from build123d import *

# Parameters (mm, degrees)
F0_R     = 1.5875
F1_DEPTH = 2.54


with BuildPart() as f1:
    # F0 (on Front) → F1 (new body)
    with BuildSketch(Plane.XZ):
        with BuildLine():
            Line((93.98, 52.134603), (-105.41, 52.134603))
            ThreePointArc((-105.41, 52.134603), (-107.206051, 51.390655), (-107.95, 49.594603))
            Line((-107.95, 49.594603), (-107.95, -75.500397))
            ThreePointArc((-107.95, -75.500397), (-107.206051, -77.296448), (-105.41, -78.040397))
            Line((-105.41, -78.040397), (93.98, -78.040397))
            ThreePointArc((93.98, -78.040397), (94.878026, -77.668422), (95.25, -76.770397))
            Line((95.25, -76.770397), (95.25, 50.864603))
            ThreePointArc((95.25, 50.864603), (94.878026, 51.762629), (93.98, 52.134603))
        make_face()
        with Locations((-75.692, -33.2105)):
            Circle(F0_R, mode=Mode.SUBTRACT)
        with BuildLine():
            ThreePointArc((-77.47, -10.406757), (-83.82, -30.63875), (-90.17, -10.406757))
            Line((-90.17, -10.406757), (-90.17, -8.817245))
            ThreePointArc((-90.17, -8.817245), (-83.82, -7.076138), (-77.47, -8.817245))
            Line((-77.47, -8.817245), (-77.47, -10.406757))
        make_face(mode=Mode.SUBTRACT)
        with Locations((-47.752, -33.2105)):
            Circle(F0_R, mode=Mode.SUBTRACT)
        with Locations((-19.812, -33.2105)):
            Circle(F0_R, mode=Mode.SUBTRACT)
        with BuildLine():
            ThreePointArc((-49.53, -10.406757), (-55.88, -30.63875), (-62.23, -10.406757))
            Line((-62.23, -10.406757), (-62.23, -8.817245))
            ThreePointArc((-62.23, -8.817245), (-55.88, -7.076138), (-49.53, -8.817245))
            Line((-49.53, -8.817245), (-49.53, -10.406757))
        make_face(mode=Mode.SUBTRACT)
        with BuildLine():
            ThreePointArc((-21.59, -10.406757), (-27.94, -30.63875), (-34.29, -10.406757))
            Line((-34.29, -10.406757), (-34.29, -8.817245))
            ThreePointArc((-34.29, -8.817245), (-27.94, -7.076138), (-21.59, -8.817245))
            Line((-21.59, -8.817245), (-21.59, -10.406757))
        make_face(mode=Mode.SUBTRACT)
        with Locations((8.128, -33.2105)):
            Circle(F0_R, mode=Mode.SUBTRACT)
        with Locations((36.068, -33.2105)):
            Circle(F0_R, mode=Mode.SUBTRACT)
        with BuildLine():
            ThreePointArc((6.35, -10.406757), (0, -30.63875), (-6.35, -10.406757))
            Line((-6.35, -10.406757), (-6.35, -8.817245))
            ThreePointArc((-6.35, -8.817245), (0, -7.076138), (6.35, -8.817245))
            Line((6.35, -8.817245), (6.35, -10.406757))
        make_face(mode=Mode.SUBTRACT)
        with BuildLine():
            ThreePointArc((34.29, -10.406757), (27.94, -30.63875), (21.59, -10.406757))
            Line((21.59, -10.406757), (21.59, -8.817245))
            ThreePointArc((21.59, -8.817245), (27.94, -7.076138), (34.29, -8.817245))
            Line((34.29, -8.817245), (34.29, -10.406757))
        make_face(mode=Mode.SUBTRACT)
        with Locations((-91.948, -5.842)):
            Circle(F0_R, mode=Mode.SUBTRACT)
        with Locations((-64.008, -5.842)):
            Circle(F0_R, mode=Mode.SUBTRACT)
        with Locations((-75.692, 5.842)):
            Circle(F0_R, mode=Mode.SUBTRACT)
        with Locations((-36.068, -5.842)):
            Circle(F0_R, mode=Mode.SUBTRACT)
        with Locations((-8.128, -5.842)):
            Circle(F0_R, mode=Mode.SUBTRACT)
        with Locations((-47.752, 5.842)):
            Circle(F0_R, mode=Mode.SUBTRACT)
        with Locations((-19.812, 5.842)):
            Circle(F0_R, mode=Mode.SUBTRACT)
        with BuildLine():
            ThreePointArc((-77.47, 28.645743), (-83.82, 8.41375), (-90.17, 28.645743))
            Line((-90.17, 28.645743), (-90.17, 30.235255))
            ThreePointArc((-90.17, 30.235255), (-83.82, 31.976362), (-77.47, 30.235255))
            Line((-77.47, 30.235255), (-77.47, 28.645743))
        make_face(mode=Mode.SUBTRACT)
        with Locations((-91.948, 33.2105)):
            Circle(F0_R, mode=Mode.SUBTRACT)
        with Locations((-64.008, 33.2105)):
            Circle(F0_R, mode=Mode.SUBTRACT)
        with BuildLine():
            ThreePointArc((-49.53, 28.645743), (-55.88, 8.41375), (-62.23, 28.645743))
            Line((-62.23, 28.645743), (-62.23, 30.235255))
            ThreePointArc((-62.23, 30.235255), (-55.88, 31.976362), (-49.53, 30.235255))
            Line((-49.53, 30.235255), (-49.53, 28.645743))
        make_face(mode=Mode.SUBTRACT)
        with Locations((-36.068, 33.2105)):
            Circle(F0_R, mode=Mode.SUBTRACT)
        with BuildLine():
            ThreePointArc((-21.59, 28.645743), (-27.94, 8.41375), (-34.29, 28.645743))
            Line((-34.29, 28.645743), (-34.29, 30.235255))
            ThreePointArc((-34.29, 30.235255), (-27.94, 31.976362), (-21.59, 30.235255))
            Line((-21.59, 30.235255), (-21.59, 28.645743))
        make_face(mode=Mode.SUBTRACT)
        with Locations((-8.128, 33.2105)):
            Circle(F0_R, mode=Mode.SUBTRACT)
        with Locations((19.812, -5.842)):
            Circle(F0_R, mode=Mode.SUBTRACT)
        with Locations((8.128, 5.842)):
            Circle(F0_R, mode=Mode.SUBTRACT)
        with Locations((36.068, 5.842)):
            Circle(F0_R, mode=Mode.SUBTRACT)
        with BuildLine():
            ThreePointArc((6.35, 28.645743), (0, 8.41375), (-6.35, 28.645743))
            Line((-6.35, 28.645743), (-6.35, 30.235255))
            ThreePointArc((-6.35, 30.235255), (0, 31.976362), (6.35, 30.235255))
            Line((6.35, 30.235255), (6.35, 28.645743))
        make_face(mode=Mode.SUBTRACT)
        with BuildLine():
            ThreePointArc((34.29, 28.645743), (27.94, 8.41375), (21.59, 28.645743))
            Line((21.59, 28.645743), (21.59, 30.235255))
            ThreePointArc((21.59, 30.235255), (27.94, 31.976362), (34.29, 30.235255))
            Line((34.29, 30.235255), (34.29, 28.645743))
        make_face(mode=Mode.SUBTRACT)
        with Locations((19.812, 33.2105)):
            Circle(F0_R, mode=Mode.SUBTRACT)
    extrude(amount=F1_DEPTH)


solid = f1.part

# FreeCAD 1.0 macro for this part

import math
import FreeCAD as App
import Part
import Sketcher
from FreeCAD import Vector
Q = App.Units.Quantity

doc = App.newDocument("Part")
body = doc.addObject("PartDesign::Body", "Body")

sketch1 = body.newObject("Sketcher::SketchObject", "Sketch")
sketch1.AttachmentSupport = (doc.getObject("XZ_Plane"), [""])
sketch1.MapMode = "FlatFace"
sketch1.addGeometry([
    Part.LineSegment(Vector(94, 52.1, 0), Vector(-105.4, 52.1, 0)),
    Part.ArcOfCircle(Part.Circle(Vector(-105.4, 49.6, 0), Vector(0, 0, 1), 2.5), math.radians(90), math.radians(180)),
    Part.LineSegment(Vector(-108, 49.6, 0), Vector(-108, -75.5, 0)),
    Part.ArcOfCircle(Part.Circle(Vector(-105.4, -75.5, 0), Vector(0, 0, 1), 2.5), math.radians(-180), math.radians(-90)),
    Part.LineSegment(Vector(-105.4, -78, 0), Vector(94, -78, 0)),
    Part.ArcOfCircle(Part.Circle(Vector(94, -76.8, 0), Vector(0, 0, 1), 1.3), math.radians(-90), math.radians(0)),
    Part.LineSegment(Vector(95.2, -76.8, 0), Vector(95.2, 50.9, 0)),
    Part.ArcOfCircle(Part.Circle(Vector(94, 50.9, 0), Vector(0, 0, 1), 1.3), math.radians(0), math.radians(90)),
    Part.Circle(Vector(-75.7, -33.2, 0), Vector(0, 0, 1), 1.6),
    Part.LineSegment(Vector(-77.5, -8.8, 0), Vector(-77.5, -10.4, 0)),
    Part.ArcOfCircle(Part.Circle(Vector(-83.8, -19.5, 0), Vector(0, 0, 1), 11.1), math.radians(125), math.radians(415)),
    Part.LineSegment(Vector(-90.2, -10.4, 0), Vector(-90.2, -8.8, 0)),
    Part.ArcOfCircle(Part.Circle(Vector(-83.8, -19.5, 0), Vector(0, 0, 1), 12.5), math.radians(59), math.radians(121)),
    Part.Circle(Vector(-47.8, -33.2, 0), Vector(0, 0, 1), 1.6),
    Part.LineSegment(Vector(-49.5, -8.8, 0), Vector(-49.5, -10.4, 0)),
    Part.ArcOfCircle(Part.Circle(Vector(-55.9, -19.5, 0), Vector(0, 0, 1), 11.1), math.radians(125), math.radians(415)),
    Part.LineSegment(Vector(-62.2, -10.4, 0), Vector(-62.2, -8.8, 0)),
    Part.ArcOfCircle(Part.Circle(Vector(-55.9, -19.5, 0), Vector(0, 0, 1), 12.5), math.radians(59), math.radians(121)),
    Part.Circle(Vector(-91.9, -5.8, 0), Vector(0, 0, 1), 1.6),
    Part.Circle(Vector(-64, -5.8, 0), Vector(0, 0, 1), 1.6),
    Part.Circle(Vector(-36.1, -5.8, 0), Vector(0, 0, 1), 1.6),
    Part.Circle(Vector(-19.8, -33.2, 0), Vector(0, 0, 1), 1.6),
    Part.LineSegment(Vector(-21.6, -8.8, 0), Vector(-21.6, -10.4, 0)),
    Part.ArcOfCircle(Part.Circle(Vector(-27.9, -19.5, 0), Vector(0, 0, 1), 11.1), math.radians(125), math.radians(415)),
    Part.LineSegment(Vector(-34.3, -10.4, 0), Vector(-34.3, -8.8, 0)),
    Part.ArcOfCircle(Part.Circle(Vector(-27.9, -19.5, 0), Vector(0, 0, 1), 12.5), math.radians(59), math.radians(121)),
    Part.LineSegment(Vector(6.3, -8.8, 0), Vector(6.3, -10.4, 0)),
    Part.ArcOfCircle(Part.Circle(Vector(0, -19.5, 0), Vector(0, 0, 1), 11.1), math.radians(125), math.radians(415)),
    Part.LineSegment(Vector(-6.3, -10.4, 0), Vector(-6.3, -8.8, 0)),
    Part.ArcOfCircle(Part.Circle(Vector(0, -19.5, 0), Vector(0, 0, 1), 12.5), math.radians(59), math.radians(121)),
    Part.Circle(Vector(8.1, -33.2, 0), Vector(0, 0, 1), 1.6),
    Part.Circle(Vector(36.1, -33.2, 0), Vector(0, 0, 1), 1.6),
    Part.LineSegment(Vector(34.3, -8.8, 0), Vector(34.3, -10.4, 0)),
    Part.ArcOfCircle(Part.Circle(Vector(27.9, -19.5, 0), Vector(0, 0, 1), 11.1), math.radians(125), math.radians(415)),
    Part.LineSegment(Vector(21.6, -10.4, 0), Vector(21.6, -8.8, 0)),
    Part.ArcOfCircle(Part.Circle(Vector(27.9, -19.5, 0), Vector(0, 0, 1), 12.5), math.radians(59), math.radians(121)),
    Part.Circle(Vector(-8.1, -5.8, 0), Vector(0, 0, 1), 1.6),
    Part.Circle(Vector(19.8, -5.8, 0), Vector(0, 0, 1), 1.6),
    Part.Circle(Vector(-75.7, 5.8, 0), Vector(0, 0, 1), 1.6),
    Part.Circle(Vector(-47.8, 5.8, 0), Vector(0, 0, 1), 1.6),
    Part.LineSegment(Vector(-77.5, 30.2, 0), Vector(-77.5, 28.6, 0)),
    Part.ArcOfCircle(Part.Circle(Vector(-83.8, 19.5, 0), Vector(0, 0, 1), 11.1), math.radians(125), math.radians(415)),
    Part.LineSegment(Vector(-90.2, 28.6, 0), Vector(-90.2, 30.2, 0)),
    Part.ArcOfCircle(Part.Circle(Vector(-83.8, 19.5, 0), Vector(0, 0, 1), 12.5), math.radians(59), math.radians(121)),
    Part.Circle(Vector(-91.9, 33.2, 0), Vector(0, 0, 1), 1.6),
    Part.Circle(Vector(-64, 33.2, 0), Vector(0, 0, 1), 1.6),
    Part.LineSegment(Vector(-49.5, 30.2, 0), Vector(-49.5, 28.6, 0)),
    Part.ArcOfCircle(Part.Circle(Vector(-55.9, 19.5, 0), Vector(0, 0, 1), 11.1), math.radians(125), math.radians(415)),
    Part.LineSegment(Vector(-62.2, 28.6, 0), Vector(-62.2, 30.2, 0)),
    Part.ArcOfCircle(Part.Circle(Vector(-55.9, 19.5, 0), Vector(0, 0, 1), 12.5), math.radians(59), math.radians(121)),
    Part.Circle(Vector(-36.1, 33.2, 0), Vector(0, 0, 1), 1.6),
    Part.Circle(Vector(-19.8, 5.8, 0), Vector(0, 0, 1), 1.6),
    Part.Circle(Vector(8.1, 5.8, 0), Vector(0, 0, 1), 1.6),
    Part.Circle(Vector(36.1, 5.8, 0), Vector(0, 0, 1), 1.6),
    Part.LineSegment(Vector(-21.6, 30.2, 0), Vector(-21.6, 28.6, 0)),
    Part.ArcOfCircle(Part.Circle(Vector(-27.9, 19.5, 0), Vector(0, 0, 1), 11.1), math.radians(125), math.radians(415)),
    Part.LineSegment(Vector(-34.3, 28.6, 0), Vector(-34.3, 30.2, 0)),
    Part.ArcOfCircle(Part.Circle(Vector(-27.9, 19.5, 0), Vector(0, 0, 1), 12.5), math.radians(59), math.radians(121)),
    Part.LineSegment(Vector(6.3, 30.2, 0), Vector(6.3, 28.6, 0)),
    Part.ArcOfCircle(Part.Circle(Vector(0, 19.5, 0), Vector(0, 0, 1), 11.1), math.radians(125), math.radians(415)),
    Part.LineSegment(Vector(-6.3, 28.6, 0), Vector(-6.3, 30.2, 0)),
    Part.ArcOfCircle(Part.Circle(Vector(0, 19.5, 0), Vector(0, 0, 1), 12.5), math.radians(59), math.radians(121)),
    Part.Circle(Vector(-8.1, 33.2, 0), Vector(0, 0, 1), 1.6),
    Part.LineSegment(Vector(34.3, 30.2, 0), Vector(34.3, 28.6, 0)),
    Part.ArcOfCircle(Part.Circle(Vector(27.9, 19.5, 0), Vector(0, 0, 1), 11.1), math.radians(125), math.radians(415)),
    Part.LineSegment(Vector(21.6, 28.6, 0), Vector(21.6, 30.2, 0)),
    Part.ArcOfCircle(Part.Circle(Vector(27.9, 19.5, 0), Vector(0, 0, 1), 12.5), math.radians(59), math.radians(121)),
    Part.Circle(Vector(19.8, 33.2, 0), Vector(0, 0, 1), 1.6),
], False)
sketch1.addConstraint([
    Sketcher.Constraint("Tangent", 0, 2, 1, 1),
    Sketcher.Constraint("Tangent", 1, 2, 2, 1),
    Sketcher.Constraint("Tangent", 2, 2, 3, 1),
    Sketcher.Constraint("Tangent", 3, 2, 4, 1),
    Sketcher.Constraint("Tangent", 4, 2, 5, 1),
    Sketcher.Constraint("Tangent", 5, 2, 6, 1),
    Sketcher.Constraint("Tangent", 6, 2, 7, 1),
    Sketcher.Constraint("Tangent", 7, 2, 0, 1),
    Sketcher.Constraint("Coincident", 9, 2, 10, 2),
    Sketcher.Constraint("Coincident", 10, 1, 11, 1),
    Sketcher.Constraint("Coincident", 11, 2, 12, 2),
    Sketcher.Constraint("Coincident", 12, 1, 9, 1),
    Sketcher.Constraint("Coincident", 14, 2, 15, 2),
    Sketcher.Constraint("Coincident", 15, 1, 16, 1),
    Sketcher.Constraint("Coincident", 16, 2, 17, 2),
    Sketcher.Constraint("Coincident", 17, 1, 14, 1),
    Sketcher.Constraint("Coincident", 22, 2, 23, 2),
    Sketcher.Constraint("Coincident", 23, 1, 24, 1),
    Sketcher.Constraint("Coincident", 24, 2, 25, 2),
    Sketcher.Constraint("Coincident", 25, 1, 22, 1),
    Sketcher.Constraint("Coincident", 26, 2, 27, 2),
    Sketcher.Constraint("Coincident", 27, 1, 28, 1),
    Sketcher.Constraint("Coincident", 28, 2, 29, 2),
    Sketcher.Constraint("Coincident", 29, 1, 26, 1),
    Sketcher.Constraint("Coincident", 32, 2, 33, 2),
    Sketcher.Constraint("Coincident", 33, 1, 34, 1),
    Sketcher.Constraint("Coincident", 34, 2, 35, 2),
    Sketcher.Constraint("Coincident", 35, 1, 32, 1),
    Sketcher.Constraint("Coincident", 40, 2, 41, 2),
    Sketcher.Constraint("Coincident", 41, 1, 42, 1),
    Sketcher.Constraint("Coincident", 42, 2, 43, 2),
    Sketcher.Constraint("Coincident", 43, 1, 40, 1),
    Sketcher.Constraint("Coincident", 46, 2, 47, 2),
    Sketcher.Constraint("Coincident", 47, 1, 48, 1),
    Sketcher.Constraint("Coincident", 48, 2, 49, 2),
    Sketcher.Constraint("Coincident", 49, 1, 46, 1),
    Sketcher.Constraint("Coincident", 54, 2, 55, 2),
    Sketcher.Constraint("Coincident", 55, 1, 56, 1),
    Sketcher.Constraint("Coincident", 56, 2, 57, 2),
    Sketcher.Constraint("Coincident", 57, 1, 54, 1),
    Sketcher.Constraint("Coincident", 58, 2, 59, 2),
    Sketcher.Constraint("Coincident", 59, 1, 60, 1),
    Sketcher.Constraint("Coincident", 60, 2, 61, 2),
    Sketcher.Constraint("Coincident", 61, 1, 58, 1),
    Sketcher.Constraint("Coincident", 63, 2, 64, 2),
    Sketcher.Constraint("Coincident", 64, 1, 65, 1),
    Sketcher.Constraint("Coincident", 65, 2, 66, 2),
    Sketcher.Constraint("Coincident", 66, 1, 63, 1),
    Sketcher.Constraint("Horizontal", 0),
    Sketcher.Constraint("Vertical", 2),
    Sketcher.Constraint("Horizontal", 4),
    Sketcher.Constraint("Vertical", 6),
    Sketcher.Constraint("Vertical", 9),
    Sketcher.Constraint("Vertical", 11),
    Sketcher.Constraint("Vertical", 14),
    Sketcher.Constraint("Vertical", 16),
    Sketcher.Constraint("Vertical", 22),
    Sketcher.Constraint("Vertical", 24),
    Sketcher.Constraint("Vertical", 26),
    Sketcher.Constraint("Vertical", 28),
    Sketcher.Constraint("Vertical", 32),
    Sketcher.Constraint("Vertical", 34),
    Sketcher.Constraint("Vertical", 40),
    Sketcher.Constraint("Vertical", 42),
    Sketcher.Constraint("Vertical", 46),
    Sketcher.Constraint("Vertical", 48),
    Sketcher.Constraint("Vertical", 54),
    Sketcher.Constraint("Vertical", 56),
    Sketcher.Constraint("Vertical", 58),
    Sketcher.Constraint("Vertical", 60),
    Sketcher.Constraint("Vertical", 63),
    Sketcher.Constraint("Vertical", 65),
    Sketcher.Constraint("Coincident", 12, 3, 10, 3),
    Sketcher.Constraint("Coincident", 17, 3, 15, 3),
    Sketcher.Constraint("Coincident", 25, 3, 23, 3),
    Sketcher.Constraint("Coincident", 29, 3, 27, 3),
    Sketcher.Constraint("Coincident", 35, 3, 33, 3),
    Sketcher.Constraint("Coincident", 43, 3, 41, 3),
    Sketcher.Constraint("Coincident", 49, 3, 47, 3),
    Sketcher.Constraint("Coincident", 57, 3, 55, 3),
    Sketcher.Constraint("Coincident", 61, 3, 59, 3),
    Sketcher.Constraint("Coincident", 66, 3, 64, 3),
    Sketcher.Constraint("Equal", 1, 3),
    Sketcher.Constraint("Equal", 5, 7),
    Sketcher.Constraint("Equal", 8, 13),
    Sketcher.Constraint("Equal", 10, 15),
    Sketcher.Constraint("Equal", 12, 17),
    Sketcher.Constraint("Equal", 13, 18),
    Sketcher.Constraint("Equal", 18, 19),
    Sketcher.Constraint("Equal", 19, 20),
    Sketcher.Constraint("Equal", 20, 21),
    Sketcher.Constraint("Equal", 15, 23),
    Sketcher.Constraint("Equal", 17, 25),
    Sketcher.Constraint("Equal", 23, 27),
    Sketcher.Constraint("Equal", 25, 29),
    Sketcher.Constraint("Equal", 21, 30),
    Sketcher.Constraint("Equal", 30, 31),
    Sketcher.Constraint("Equal", 27, 33),
    Sketcher.Constraint("Equal", 29, 35),
    Sketcher.Constraint("Equal", 31, 36),
    Sketcher.Constraint("Equal", 36, 37),
    Sketcher.Constraint("Equal", 37, 38),
    Sketcher.Constraint("Equal", 38, 39),
    Sketcher.Constraint("Equal", 33, 41),
    Sketcher.Constraint("Equal", 35, 43),
    Sketcher.Constraint("Equal", 39, 44),
    Sketcher.Constraint("Equal", 44, 45),
    Sketcher.Constraint("Equal", 41, 47),
    Sketcher.Constraint("Equal", 43, 49),
    Sketcher.Constraint("Equal", 45, 50),
    Sketcher.Constraint("Equal", 50, 51),
    Sketcher.Constraint("Equal", 51, 52),
    Sketcher.Constraint("Equal", 52, 53),
    Sketcher.Constraint("Equal", 47, 55),
    Sketcher.Constraint("Equal", 49, 57),
    Sketcher.Constraint("Equal", 55, 59),
    Sketcher.Constraint("Equal", 57, 61),
    Sketcher.Constraint("Equal", 53, 62),
    Sketcher.Constraint("Equal", 59, 64),
    Sketcher.Constraint("Equal", 61, 66),
    Sketcher.Constraint("Equal", 62, 67),
    Sketcher.Constraint("Symmetric", 31, 3, 50, 3, -1, 1),
    Sketcher.Constraint("Symmetric", 37, 3, 51, 3, -1, 1),
    Sketcher.Constraint("Symmetric", 36, 3, 52, 3, -1, 1),
    Sketcher.Constraint("Symmetric", 20, 3, 53, 3, -1, 1),
    Sketcher.Constraint("Symmetric", 33, 3, 55, 3, -1, 1),
    Sketcher.Constraint("Symmetric", 27, 3, 59, 3, -1, 1),
    Sketcher.Constraint("Symmetric", 30, 3, 62, 3, -1, 1),
    Sketcher.Constraint("Symmetric", 23, 3, 64, 3, -1, 1),
    Sketcher.Constraint("Symmetric", 21, 3, 67, 3, -1, 1),
    Sketcher.Constraint("Symmetric", 23, 3, 33, 3, -2),
    Sketcher.Constraint("Symmetric", 26, 2, 27, 1, -2),
    Sketcher.Constraint("Symmetric", 10, 3, 41, 3, -1),
    Sketcher.Constraint("Symmetric", 15, 3, 47, 3, -1),
    Sketcher.Constraint("Horizontal", 8, 3, 13, 3),
    Sketcher.Constraint("Horizontal", 12, 3, 15, 3),
    Sketcher.Constraint("Horizontal", 18, 3, 19, 3),
    Sketcher.Constraint("Horizontal", 19, 3, 20, 3),
    Sketcher.Constraint("Horizontal", 13, 3, 21, 3),
    Sketcher.Constraint("Horizontal", 17, 3, 23, 3),
    Sketcher.Constraint("Horizontal", 25, 3, 27, 3),
    Sketcher.Constraint("Horizontal", 21, 3, 30, 3),
    Sketcher.Constraint("Horizontal", 30, 3, 31, 3),
    Sketcher.Constraint("Horizontal", 20, 3, 36, 3),
    Sketcher.Constraint("Horizontal", 36, 3, 37, 3),
    Sketcher.Constraint("Horizontal", 38, 3, 39, 3),
    Sketcher.Constraint("Horizontal", 44, 3, 45, 3),
    Sketcher.Constraint("Horizontal", 45, 3, 50, 3),
    Sketcher.Constraint("Horizontal", 39, 3, 51, 3),
    Sketcher.Constraint("Horizontal", 9, 2, 10, 1),
    Sketcher.Constraint("Horizontal", 10, 1, 14, 2),
    Sketcher.Constraint("Horizontal", 14, 2, 15, 1),
    Sketcher.Constraint("Horizontal", 15, 1, 22, 2),
    Sketcher.Constraint("Horizontal", 22, 2, 23, 1),
    Sketcher.Constraint("Horizontal", 23, 1, 26, 2),
    Sketcher.Constraint("Horizontal", 27, 1, 32, 2),
    Sketcher.Constraint("Horizontal", 32, 2, 33, 1),
    Sketcher.Constraint("Horizontal", 40, 2, 41, 1),
    Sketcher.Constraint("Horizontal", 41, 1, 46, 2),
    Sketcher.Constraint("Horizontal", 46, 2, 47, 1),
    Sketcher.Constraint("Horizontal", 47, 1, 54, 2),
    Sketcher.Constraint("Horizontal", 54, 2, 55, 1),
    Sketcher.Constraint("Horizontal", 55, 1, 58, 2),
    Sketcher.Constraint("Horizontal", 58, 2, 59, 1),
    Sketcher.Constraint("Horizontal", 59, 1, 63, 2),
    Sketcher.Constraint("Horizontal", 63, 2, 64, 1),
    Sketcher.Constraint("Vertical", 8, 3, 38, 3),
    Sketcher.Constraint("Vertical", 13, 3, 39, 3),
    Sketcher.Constraint("Vertical", 18, 3, 44, 3),
    Sketcher.Constraint("Vertical", 19, 3, 45, 3),
    Sketcher.Constraint("Vertical", 20, 3, 50, 3),
    Sketcher.Constraint("Vertical", 21, 3, 51, 3),
    Sketcher.Constraint("Vertical", 30, 3, 52, 3),
    Sketcher.Constraint("Vertical", 12, 1, 40, 2),
    Sketcher.Constraint("Radius", 1, Q("0.1 in")),
    Sketcher.Constraint("Radius", 5, Q("0.05 in")),
    Sketcher.Constraint("Diameter", 8, Q("0.125 in")),
    Sketcher.Constraint("Radius", 10, Q("0.4375 in")),
    Sketcher.Constraint("DistanceX", 0, 2, 0, 1, Q("7.85 in")),
    Sketcher.Constraint("DistanceX", -1, 1, 5, 3, Q("3.7 in")),
    Sketcher.Constraint("DistanceX", 10, 3, -1, 1, Q("3.3 in")),
    Sketcher.Constraint("DistanceX", 15, 3, -1, 1, Q("2.2 in")),
    Sketcher.Constraint("DistanceX", 23, 3, -1, 1, Q("1.1 in")),
    Sketcher.Constraint("DistanceY", 2, 2, 2, 1, Q("4.925 in")),
    Sketcher.Constraint("DistanceX", 8, 3, -1, 1, Q("2.98 in")),
    Sketcher.Constraint("DistanceX", 13, 3, -1, 1, Q("1.88 in")),
    Sketcher.Constraint("DistanceX", 18, 3, -1, 1, Q("3.62 in")),
    Sketcher.Constraint("DistanceY", 18, 3, -1, 1, Q("0.23 in")),
    Sketcher.Constraint("DistanceX", 19, 3, -1, 1, Q("2.52 in")),
    Sketcher.Constraint("DistanceX", 20, 3, -1, 1, Q("1.42 in")),
    Sketcher.Constraint("DistanceX", 21, 3, -1, 1, Q("0.78 in")),
    Sketcher.Constraint("DistanceX", -1, 1, 30, 3, Q("0.32 in")),
    Sketcher.Constraint("DistanceX", 9, 2, -1, 1, Q("3.05 in")),
    Sketcher.Constraint("Radius", 12, 12.450112),
    Sketcher.Constraint("DistanceY", 8, 3, -1, 1, Q("1.3075 in")),
    Sketcher.Constraint("DistanceY", 10, 3, -1, 1, 19.52625),
    Sketcher.Constraint("DistanceY", -1, 1, 1, 3, 49.594604),
])
pad1 = body.newObject("PartDesign::Pad", "Pad")
pad1.Profile = sketch1
pad1.Length = Q("0.1 in")

doc.recompute()
